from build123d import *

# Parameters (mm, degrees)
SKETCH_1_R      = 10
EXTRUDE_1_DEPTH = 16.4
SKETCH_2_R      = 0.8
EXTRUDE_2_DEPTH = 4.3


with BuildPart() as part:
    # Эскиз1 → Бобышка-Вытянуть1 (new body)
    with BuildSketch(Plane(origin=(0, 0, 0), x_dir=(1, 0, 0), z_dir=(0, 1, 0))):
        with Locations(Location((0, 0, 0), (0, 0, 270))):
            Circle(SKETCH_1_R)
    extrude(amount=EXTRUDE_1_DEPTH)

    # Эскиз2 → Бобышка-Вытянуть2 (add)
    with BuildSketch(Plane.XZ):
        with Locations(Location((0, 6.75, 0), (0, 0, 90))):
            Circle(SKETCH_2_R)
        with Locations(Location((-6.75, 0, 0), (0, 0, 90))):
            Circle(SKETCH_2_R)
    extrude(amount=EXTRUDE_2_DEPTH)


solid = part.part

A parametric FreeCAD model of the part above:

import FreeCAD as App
import Part
import Sketcher

V = App.Vector
Q = App.Units.Quantity

doc = App.newDocument("Part")
params = doc.addObject("Spreadsheet::Sheet", "Params")
for row, (alias, value) in enumerate([
    ("sketch1_diameter", "20 mm"),
    ("pad1_length", "16.4 mm"),
    ("sketch2_diameter", "1.6 mm"),
    ("pad2_length", "4.3 mm"),
], start=1):
    params.set(f"A{row}", alias)
    params.set(f"B{row}", "=" + value)
    params.setAlias(f"B{row}", alias)

body = doc.addObject("PartDesign::Body", "Body")

# Sketch on XZ plane
sketch1 = doc.addObject("Sketcher::SketchObject", "Sketch")
body.addObject(sketch1)
sketch1.AttachmentSupport = (doc.XZ_Plane, [""])
sketch1.MapMode = "FlatFace"
sketch1.addGeometry(Part.Circle(V(0, 0, 0), V(0, 0, 1), 10), False)
sketch1.addConstraint(Sketcher.Constraint("Coincident", 0, 3, -1, 1))
sketch1.addConstraint(Sketcher.Constraint("Diameter", 0, Q("20 mm")))
sketch1.setExpression("Constraints[1]", "Params.sketch1_diameter")
pad1 = doc.addObject("PartDesign::Pad", "Pad")
body.addObject(pad1)
pad1.Profile = sketch1
pad1.setExpression("Length", "Params.pad1_length")
pad1.Reversed = True

# Sketch on XZ plane
sketch2 = doc.addObject("Sketcher::SketchObject", "Sketch001")
body.addObject(sketch2)
sketch2.AttachmentSupport = (doc.XZ_Plane, [""])
sketch2.MapMode = "FlatFace"
sketch2.addGeometry(Part.Circle(V(0, 6.75, 0), V(0, 0, 1), 0.8), False)
sketch2.addGeometry(Part.Circle(V(-6.75, 0, 0), V(0, 0, 1), 0.8), False)
sketch2.addConstraint(Sketcher.Constraint("Equal", 0, 1))
sketch2.addConstraint(Sketcher.Constraint("PointOnObject", 0, 3, -2))
sketch2.addConstraint(Sketcher.Constraint("PointOnObject", 1, 3, -1))
sketch2.addConstraint(Sketcher.Constraint("Diameter", 0, Q("1.6 mm")))
sketch2.addConstraint(Sketcher.Constraint("DistanceY", -1, 1, 0, 3, Q("6.75 mm")))
sketch2.addConstraint(Sketcher.Constraint("DistanceX", 1, 3, -1, 1, Q("6.75 mm")))
sketch2.setExpression("Constraints[3]", "Params.sketch2_diameter")
pad2 = doc.addObject("PartDesign::Pad", "Pad001")
body.addObject(pad2)
pad2.Profile = sketch2
pad2.setExpression("Length", "Params.pad2_length")

doc.recompute()
